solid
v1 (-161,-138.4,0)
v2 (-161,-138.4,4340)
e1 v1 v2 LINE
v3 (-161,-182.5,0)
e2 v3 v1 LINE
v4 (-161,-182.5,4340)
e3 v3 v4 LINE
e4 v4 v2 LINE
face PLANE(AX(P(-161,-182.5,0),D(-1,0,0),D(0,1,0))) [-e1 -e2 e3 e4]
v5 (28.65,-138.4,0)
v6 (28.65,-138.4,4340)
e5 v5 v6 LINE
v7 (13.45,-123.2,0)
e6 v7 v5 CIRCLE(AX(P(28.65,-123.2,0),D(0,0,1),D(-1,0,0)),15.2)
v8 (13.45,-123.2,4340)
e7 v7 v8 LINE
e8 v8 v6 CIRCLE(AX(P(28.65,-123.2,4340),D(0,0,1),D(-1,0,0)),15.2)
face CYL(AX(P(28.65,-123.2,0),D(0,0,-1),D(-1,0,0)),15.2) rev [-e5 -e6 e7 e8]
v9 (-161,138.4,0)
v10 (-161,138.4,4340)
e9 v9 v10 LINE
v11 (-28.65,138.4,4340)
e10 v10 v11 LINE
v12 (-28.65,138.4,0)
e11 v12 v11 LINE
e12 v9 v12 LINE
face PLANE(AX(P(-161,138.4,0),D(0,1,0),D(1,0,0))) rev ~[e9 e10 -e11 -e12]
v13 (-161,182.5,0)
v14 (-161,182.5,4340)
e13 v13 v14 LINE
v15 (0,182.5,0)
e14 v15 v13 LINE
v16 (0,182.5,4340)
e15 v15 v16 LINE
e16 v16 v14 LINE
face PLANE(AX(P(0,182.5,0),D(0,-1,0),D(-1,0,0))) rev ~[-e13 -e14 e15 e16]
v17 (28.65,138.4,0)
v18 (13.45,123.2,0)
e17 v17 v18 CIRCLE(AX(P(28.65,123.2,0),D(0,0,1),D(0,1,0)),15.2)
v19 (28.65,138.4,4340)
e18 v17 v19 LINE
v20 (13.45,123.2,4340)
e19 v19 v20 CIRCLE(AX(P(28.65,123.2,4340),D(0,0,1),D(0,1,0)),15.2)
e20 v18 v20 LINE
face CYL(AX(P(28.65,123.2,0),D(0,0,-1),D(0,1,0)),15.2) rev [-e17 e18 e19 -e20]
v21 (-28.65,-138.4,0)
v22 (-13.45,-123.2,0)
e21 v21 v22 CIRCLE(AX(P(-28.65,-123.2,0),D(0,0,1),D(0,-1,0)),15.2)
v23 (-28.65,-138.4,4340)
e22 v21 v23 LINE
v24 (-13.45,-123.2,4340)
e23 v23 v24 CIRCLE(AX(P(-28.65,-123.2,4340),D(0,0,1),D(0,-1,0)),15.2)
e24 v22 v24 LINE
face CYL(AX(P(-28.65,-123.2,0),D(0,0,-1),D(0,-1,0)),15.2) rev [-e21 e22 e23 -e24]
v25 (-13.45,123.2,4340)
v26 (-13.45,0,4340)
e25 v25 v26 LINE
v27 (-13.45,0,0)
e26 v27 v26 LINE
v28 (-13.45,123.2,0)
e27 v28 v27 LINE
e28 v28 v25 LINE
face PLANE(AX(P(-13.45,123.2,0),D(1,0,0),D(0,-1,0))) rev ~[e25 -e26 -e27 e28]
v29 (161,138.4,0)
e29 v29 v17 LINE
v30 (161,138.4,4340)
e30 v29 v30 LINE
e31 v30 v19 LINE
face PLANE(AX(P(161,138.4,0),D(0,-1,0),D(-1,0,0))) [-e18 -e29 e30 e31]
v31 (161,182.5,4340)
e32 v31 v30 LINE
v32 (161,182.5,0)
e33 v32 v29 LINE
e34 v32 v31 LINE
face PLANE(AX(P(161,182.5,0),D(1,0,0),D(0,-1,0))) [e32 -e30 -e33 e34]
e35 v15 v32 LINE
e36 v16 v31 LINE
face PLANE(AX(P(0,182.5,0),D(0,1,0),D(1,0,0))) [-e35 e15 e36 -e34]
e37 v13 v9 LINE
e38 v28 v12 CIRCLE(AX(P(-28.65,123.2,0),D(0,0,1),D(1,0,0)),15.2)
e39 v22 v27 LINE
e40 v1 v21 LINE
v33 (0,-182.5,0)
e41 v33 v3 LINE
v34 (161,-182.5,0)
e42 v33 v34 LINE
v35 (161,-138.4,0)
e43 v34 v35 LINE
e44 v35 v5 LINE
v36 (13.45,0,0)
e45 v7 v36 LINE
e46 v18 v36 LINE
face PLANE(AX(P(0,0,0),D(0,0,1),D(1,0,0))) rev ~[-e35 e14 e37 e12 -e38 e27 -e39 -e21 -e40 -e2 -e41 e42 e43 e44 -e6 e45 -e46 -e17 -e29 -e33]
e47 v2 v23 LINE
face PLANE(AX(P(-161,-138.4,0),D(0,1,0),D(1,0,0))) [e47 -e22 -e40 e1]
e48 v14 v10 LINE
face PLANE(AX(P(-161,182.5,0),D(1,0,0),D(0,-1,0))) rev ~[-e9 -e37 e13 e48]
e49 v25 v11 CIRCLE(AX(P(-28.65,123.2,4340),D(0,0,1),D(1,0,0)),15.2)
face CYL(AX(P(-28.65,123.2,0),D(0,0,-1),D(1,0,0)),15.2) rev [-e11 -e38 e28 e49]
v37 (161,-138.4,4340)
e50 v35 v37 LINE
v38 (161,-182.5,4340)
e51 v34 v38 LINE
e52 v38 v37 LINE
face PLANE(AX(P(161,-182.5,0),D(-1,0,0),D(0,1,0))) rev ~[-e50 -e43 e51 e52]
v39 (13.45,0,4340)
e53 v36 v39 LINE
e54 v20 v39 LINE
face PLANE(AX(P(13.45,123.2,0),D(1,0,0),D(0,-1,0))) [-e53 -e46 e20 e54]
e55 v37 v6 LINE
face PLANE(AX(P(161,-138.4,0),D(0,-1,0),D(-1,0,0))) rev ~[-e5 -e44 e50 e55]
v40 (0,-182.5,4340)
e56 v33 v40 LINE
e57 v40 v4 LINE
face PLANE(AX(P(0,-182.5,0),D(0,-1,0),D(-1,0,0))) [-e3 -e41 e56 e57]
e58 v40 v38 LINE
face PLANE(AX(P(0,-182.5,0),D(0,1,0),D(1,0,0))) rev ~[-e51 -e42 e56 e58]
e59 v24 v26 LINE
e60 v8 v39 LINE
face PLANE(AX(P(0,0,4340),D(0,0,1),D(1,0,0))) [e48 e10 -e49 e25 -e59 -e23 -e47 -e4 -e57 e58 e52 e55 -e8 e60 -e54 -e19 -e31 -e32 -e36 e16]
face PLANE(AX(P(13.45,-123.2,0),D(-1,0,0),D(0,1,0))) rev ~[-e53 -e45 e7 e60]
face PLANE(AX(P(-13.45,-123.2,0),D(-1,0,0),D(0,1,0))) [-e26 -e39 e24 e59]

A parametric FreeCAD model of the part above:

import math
import FreeCAD as App
import Part
import Sketcher
from FreeCAD import Vector

doc = App.newDocument("Part")
body = doc.addObject("PartDesign::Body", "Body")

# Sketch on XY plane
sketch1 = doc.addObject("Sketcher::SketchObject", "Sketch")
body.addObject(sketch1)
sketch1.AttachmentSupport = (doc.XY_Plane, [""])
sketch1.MapMode = "FlatFace"
sketch1.addGeometry(Part.LineSegment(Vector(-161, -138, 0), Vector(-161, -182, 0)), False)
sketch1.addGeometry(Part.LineSegment(Vector(-161, -182, 0), Vector(161, -182, 0)), False)
sketch1.addGeometry(Part.LineSegment(Vector(161, -182, 0), Vector(161, -138, 0)), False)
sketch1.addGeometry(Part.LineSegment(Vector(161, -138, 0), Vector(29, -138, 0)), False)
sketch1.addGeometry(Part.ArcOfCircle(Part.Circle(Vector(29, -123, 0), Vector(0, 0, 1), 15), math.radians(180), math.radians(270)), False)
sketch1.addGeometry(Part.LineSegment(Vector(13, -123, 0), Vector(13, 123, 0)), False)
sketch1.addGeometry(Part.ArcOfCircle(Part.Circle(Vector(29, 123, 0), Vector(0, 0, 1), 15), math.radians(90), math.radians(180)), False)
sketch1.addGeometry(Part.LineSegment(Vector(29, 138, 0), Vector(161, 138, 0)), False)
sketch1.addGeometry(Part.LineSegment(Vector(161, 138, 0), Vector(161, 182, 0)), False)
sketch1.addGeometry(Part.LineSegment(Vector(161, 182, 0), Vector(-161, 182, 0)), False)
sketch1.addGeometry(Part.LineSegment(Vector(-161, 182, 0), Vector(-161, 138, 0)), False)
sketch1.addGeometry(Part.LineSegment(Vector(-161, 138, 0), Vector(-29, 138, 0)), False)
sketch1.addGeometry(Part.ArcOfCircle(Part.Circle(Vector(-29, 123, 0), Vector(0, 0, 1), 15), math.radians(0), math.radians(90)), False)
sketch1.addGeometry(Part.LineSegment(Vector(-13, 123, 0), Vector(-13, -123, 0)), False)
sketch1.addGeometry(Part.ArcOfCircle(Part.Circle(Vector(-29, -123, 0), Vector(0, 0, 1), 15), math.radians(-90), math.radians(0)), False)
sketch1.addGeometry(Part.LineSegment(Vector(-29, -138, 0), Vector(-161, -138, 0)), False)
sketch1.addConstraint(Sketcher.Constraint("Coincident", 0, 2, 1, 1))
sketch1.addConstraint(Sketcher.Constraint("Coincident", 1, 2, 2, 1))
sketch1.addConstraint(Sketcher.Constraint("Coincident", 2, 2, 3, 1))
sketch1.addConstraint(Sketcher.Constraint("Tangent", 3, 2, 4, 2))
sketch1.addConstraint(Sketcher.Constraint("Tangent", 4, 1, 5, 1))
sketch1.addConstraint(Sketcher.Constraint("Tangent", 5, 2, 6, 2))
sketch1.addConstraint(Sketcher.Constraint("Tangent", 6, 1, 7, 1))
sketch1.addConstraint(Sketcher.Constraint("Coincident", 7, 2, 8, 1))
sketch1.addConstraint(Sketcher.Constraint("Coincident", 8, 2, 9, 1))
sketch1.addConstraint(Sketcher.Constraint("Coincident", 9, 2, 10, 1))
sketch1.addConstraint(Sketcher.Constraint("Coincident", 10, 2, 11, 1))
sketch1.addConstraint(Sketcher.Constraint("Tangent", 11, 2, 12, 2))
sketch1.addConstraint(Sketcher.Constraint("Tangent", 12, 1, 13, 1))
sketch1.addConstraint(Sketcher.Constraint("Tangent", 13, 2, 14, 2))
sketch1.addConstraint(Sketcher.Constraint("Tangent", 14, 1, 15, 1))
sketch1.addConstraint(Sketcher.Constraint("Coincident", 15, 2, 0, 1))
sketch1.addConstraint(Sketcher.Constraint("Vertical", 0))
sketch1.addConstraint(Sketcher.Constraint("Horizontal", 1))
sketch1.addConstraint(Sketcher.Constraint("Vertical", 2))
sketch1.addConstraint(Sketcher.Constraint("Horizontal", 3))
sketch1.addConstraint(Sketcher.Constraint("Vertical", 5))
sketch1.addConstraint(Sketcher.Constraint("Horizontal", 7))
sketch1.addConstraint(Sketcher.Constraint("Vertical", 8))
sketch1.addConstraint(Sketcher.Constraint("Horizontal", 9))
sketch1.addConstraint(Sketcher.Constraint("Vertical", 10))
sketch1.addConstraint(Sketcher.Constraint("Horizontal", 11))
sketch1.addConstraint(Sketcher.Constraint("Vertical", 13))
sketch1.addConstraint(Sketcher.Constraint("Horizontal", 15))
sketch1.addConstraint(Sketcher.Constraint("Equal", 4, 6))
sketch1.addConstraint(Sketcher.Constraint("Equal", 6, 12))
sketch1.addConstraint(Sketcher.Constraint("Equal", 12, 14))
sketch1.addConstraint(Sketcher.Constraint("Symmetric", 4, 3, 12, 3, -1, 1))
sketch1.addConstraint(Sketcher.Constraint("Symmetric", 0, 2, 8, 2, -1, 1))
sketch1.addConstraint(Sketcher.Constraint("Symmetric", 7, 2, 10, 2, -2))
sketch1.addConstraint(Sketcher.Constraint("Symmetric", 2, 2, 15, 2, -2))
sketch1.addConstraint(Sketcher.Constraint("Radius", 4, 15.2))
sketch1.addConstraint(Sketcher.Constraint("DistanceY", 0, 2, 0, 1, 44.1))
sketch1.addConstraint(Sketcher.Constraint("DistanceX", 0, 2, -1, 1, 161.0))
sketch1.addConstraint(Sketcher.Constraint("DistanceY", 0, 2, -1, 1, 182.5))
sketch1.addConstraint(Sketcher.Constraint("DistanceX", -1, 1, 4, 1, 13.45))
pad1 = doc.addObject("PartDesign::Pad", "Pad")
body.addObject(pad1)
pad1.Profile = sketch1
pad1.Length = 4340

doc.recompute()
